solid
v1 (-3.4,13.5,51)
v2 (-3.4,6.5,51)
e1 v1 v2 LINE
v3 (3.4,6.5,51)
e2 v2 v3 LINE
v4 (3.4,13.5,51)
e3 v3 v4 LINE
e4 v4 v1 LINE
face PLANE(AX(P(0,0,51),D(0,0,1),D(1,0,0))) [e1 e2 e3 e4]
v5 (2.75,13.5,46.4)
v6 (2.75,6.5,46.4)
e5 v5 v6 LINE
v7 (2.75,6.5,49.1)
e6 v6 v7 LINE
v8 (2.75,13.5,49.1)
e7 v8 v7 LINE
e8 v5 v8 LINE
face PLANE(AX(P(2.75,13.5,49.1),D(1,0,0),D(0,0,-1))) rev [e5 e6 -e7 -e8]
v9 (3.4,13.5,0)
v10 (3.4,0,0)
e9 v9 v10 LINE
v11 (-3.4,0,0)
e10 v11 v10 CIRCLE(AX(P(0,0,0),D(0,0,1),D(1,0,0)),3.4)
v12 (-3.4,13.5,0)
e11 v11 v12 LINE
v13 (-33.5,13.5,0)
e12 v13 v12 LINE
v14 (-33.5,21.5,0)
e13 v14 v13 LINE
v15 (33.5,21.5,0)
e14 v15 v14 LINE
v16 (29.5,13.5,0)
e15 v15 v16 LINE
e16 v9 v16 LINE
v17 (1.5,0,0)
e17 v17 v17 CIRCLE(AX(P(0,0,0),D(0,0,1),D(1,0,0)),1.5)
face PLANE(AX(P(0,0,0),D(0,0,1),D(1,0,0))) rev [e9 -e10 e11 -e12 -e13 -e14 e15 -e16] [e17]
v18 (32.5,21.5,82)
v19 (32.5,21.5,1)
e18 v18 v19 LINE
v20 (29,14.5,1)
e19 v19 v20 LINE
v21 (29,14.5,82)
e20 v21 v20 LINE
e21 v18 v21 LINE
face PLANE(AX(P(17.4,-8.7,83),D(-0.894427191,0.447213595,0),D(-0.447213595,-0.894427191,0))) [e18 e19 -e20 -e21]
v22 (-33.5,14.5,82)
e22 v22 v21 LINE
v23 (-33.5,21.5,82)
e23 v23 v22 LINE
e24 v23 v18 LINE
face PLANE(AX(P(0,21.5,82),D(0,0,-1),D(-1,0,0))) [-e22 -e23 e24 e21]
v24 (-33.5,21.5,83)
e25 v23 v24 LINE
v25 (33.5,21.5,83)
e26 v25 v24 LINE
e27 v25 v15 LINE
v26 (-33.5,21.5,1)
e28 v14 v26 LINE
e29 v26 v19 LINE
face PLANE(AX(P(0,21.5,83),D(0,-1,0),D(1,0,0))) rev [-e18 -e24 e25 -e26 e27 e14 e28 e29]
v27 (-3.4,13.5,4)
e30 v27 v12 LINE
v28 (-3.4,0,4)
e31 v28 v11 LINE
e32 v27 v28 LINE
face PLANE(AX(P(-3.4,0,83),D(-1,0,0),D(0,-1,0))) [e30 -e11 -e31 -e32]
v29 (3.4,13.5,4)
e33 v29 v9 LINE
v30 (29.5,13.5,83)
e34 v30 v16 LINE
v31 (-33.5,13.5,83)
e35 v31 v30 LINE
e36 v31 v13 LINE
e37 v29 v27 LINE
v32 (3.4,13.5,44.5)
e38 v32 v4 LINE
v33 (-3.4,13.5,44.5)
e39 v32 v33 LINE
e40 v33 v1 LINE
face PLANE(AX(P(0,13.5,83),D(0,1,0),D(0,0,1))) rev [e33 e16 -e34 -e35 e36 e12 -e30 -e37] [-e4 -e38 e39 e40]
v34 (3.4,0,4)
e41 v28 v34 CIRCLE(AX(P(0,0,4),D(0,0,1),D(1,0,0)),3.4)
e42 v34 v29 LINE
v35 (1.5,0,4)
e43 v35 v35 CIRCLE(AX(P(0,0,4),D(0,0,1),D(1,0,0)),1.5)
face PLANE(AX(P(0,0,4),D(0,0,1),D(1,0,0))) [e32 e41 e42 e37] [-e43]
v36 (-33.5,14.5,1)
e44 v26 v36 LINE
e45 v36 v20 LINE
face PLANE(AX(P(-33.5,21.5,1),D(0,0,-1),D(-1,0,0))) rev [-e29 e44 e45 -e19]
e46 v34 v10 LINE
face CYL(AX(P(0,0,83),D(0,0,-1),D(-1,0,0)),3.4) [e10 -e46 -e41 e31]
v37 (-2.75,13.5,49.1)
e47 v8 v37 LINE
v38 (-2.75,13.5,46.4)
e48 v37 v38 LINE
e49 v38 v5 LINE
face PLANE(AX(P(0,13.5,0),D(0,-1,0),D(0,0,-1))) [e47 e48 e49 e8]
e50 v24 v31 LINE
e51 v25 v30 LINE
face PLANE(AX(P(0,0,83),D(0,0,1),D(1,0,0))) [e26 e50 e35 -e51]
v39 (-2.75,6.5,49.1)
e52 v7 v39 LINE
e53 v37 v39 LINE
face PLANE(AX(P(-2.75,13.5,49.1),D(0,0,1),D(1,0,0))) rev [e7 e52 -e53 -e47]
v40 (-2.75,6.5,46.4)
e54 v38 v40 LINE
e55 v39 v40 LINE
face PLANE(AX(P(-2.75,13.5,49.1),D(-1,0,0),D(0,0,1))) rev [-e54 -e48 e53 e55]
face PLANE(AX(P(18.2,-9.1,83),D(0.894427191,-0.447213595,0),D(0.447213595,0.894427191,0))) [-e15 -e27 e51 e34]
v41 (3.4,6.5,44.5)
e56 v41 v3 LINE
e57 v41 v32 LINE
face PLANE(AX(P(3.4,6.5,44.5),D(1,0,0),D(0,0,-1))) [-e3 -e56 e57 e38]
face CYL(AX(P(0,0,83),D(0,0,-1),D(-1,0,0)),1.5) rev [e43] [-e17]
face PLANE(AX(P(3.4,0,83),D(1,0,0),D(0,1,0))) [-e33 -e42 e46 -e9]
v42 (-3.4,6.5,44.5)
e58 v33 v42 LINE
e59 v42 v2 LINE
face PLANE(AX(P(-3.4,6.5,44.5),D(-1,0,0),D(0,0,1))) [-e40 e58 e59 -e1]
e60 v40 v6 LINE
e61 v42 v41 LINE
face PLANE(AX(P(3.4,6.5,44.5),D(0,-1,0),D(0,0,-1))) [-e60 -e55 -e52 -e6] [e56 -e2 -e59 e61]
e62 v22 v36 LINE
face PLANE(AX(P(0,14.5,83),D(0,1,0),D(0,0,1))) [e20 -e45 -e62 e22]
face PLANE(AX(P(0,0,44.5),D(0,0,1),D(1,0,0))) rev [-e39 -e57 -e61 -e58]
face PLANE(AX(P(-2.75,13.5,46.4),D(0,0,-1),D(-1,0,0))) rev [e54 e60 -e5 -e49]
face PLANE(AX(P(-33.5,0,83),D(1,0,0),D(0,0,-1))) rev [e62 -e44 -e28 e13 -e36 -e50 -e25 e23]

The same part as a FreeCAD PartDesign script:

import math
import FreeCAD as App
import Part
import Sketcher
Q = App.Units.Quantity


def add_polygon(sketch, points):
    """Adds a closed chain of lines whose ends are joined by coincident constraints."""
    first, n = sketch.GeometryCount, len(points)
    for a, b in zip(points, points[1:] + points[:1]):
        sketch.addGeometry(Part.LineSegment(App.Vector(*a, 0), App.Vector(*b, 0)), False)
    for i in range(n):
        sketch.addConstraint(Sketcher.Constraint("Coincident", first + i, 2, first + (i + 1) % n, 1))

doc = App.newDocument("Part")
body = doc.addObject("PartDesign::Body", "Body")

sketch1 = doc.addObject("Sketcher::SketchObject", "Sketch")
body.addObject(sketch1)
sketch1.AttachmentSupport = (doc.XY_Plane, [""])
sketch1.MapMode = "FlatFace"
sketch1.addGeometry([
    Part.LineSegment(App.Vector(32.5, 21.5, 0), App.Vector(29, 14.5, 0)),
    Part.LineSegment(App.Vector(29, 14.5, 0), App.Vector(-33.5, 14.5, 0)),
    Part.LineSegment(App.Vector(-33.5, 14.5, 0), App.Vector(-33.5, 13.5, 0)),
    Part.LineSegment(App.Vector(-33.5, 13.5, 0), App.Vector(-3.4, 13.5, 0)),
    Part.LineSegment(App.Vector(-3.4, 13.5, 0), App.Vector(-3.4, 0, 0)),
    Part.ArcOfCircle(Part.Circle(App.Vector(0, 0, 0), App.Vector(0, 0, 1), 3.4), math.radians(180), math.radians(360)),
    Part.LineSegment(App.Vector(3.4, 0, 0), App.Vector(3.4, 13.5, 0)),
    Part.LineSegment(App.Vector(3.4, 13.5, 0), App.Vector(29.5, 13.5, 0)),
    Part.LineSegment(App.Vector(29.5, 13.5, 0), App.Vector(33.5, 21.5, 0)),
    Part.LineSegment(App.Vector(33.5, 21.5, 0), App.Vector(32.5, 21.5, 0)),
    Part.Circle(App.Vector(0, 0, 0), App.Vector(0, 0, 1), 1.5),
], False)
sketch1.addConstraint([
    Sketcher.Constraint("Coincident", 0, 2, 1, 1),
    Sketcher.Constraint("Coincident", 1, 2, 2, 1),
    Sketcher.Constraint("Coincident", 2, 2, 3, 1),
    Sketcher.Constraint("Coincident", 3, 2, 4, 1),
    Sketcher.Constraint("Tangent", 4, 2, 5, 1),
    Sketcher.Constraint("Tangent", 5, 2, 6, 1),
    Sketcher.Constraint("Coincident", 6, 2, 7, 1),
    Sketcher.Constraint("Coincident", 7, 2, 8, 1),
    Sketcher.Constraint("Coincident", 8, 2, 9, 1),
    Sketcher.Constraint("Coincident", 9, 2, 0, 1),
    Sketcher.Constraint("Horizontal", 1),
    Sketcher.Constraint("Vertical", 2),
    Sketcher.Constraint("Horizontal", 3),
    Sketcher.Constraint("Vertical", 4),
    Sketcher.Constraint("Vertical", 6),
    Sketcher.Constraint("Horizontal", 7),
    Sketcher.Constraint("Horizontal", 9),
    Sketcher.Constraint("Coincident", 5, 3, -1, 1),
    Sketcher.Constraint("Coincident", 10, 3, -1, 1),
    Sketcher.Constraint("Parallel", 0, 8),
    Sketcher.Constraint("Horizontal", 3, 2, 6, 2),
    Sketcher.Constraint("Equal", 9, 2),
    Sketcher.Constraint("Diameter", 10, Q("3 mm")),
    Sketcher.Constraint("Radius", 5, Q("3.4 mm")),
    Sketcher.Constraint("DistanceX", 9, 2, 9, 1, Q("1 mm")),
    Sketcher.Constraint("DistanceX", 1, 2, 1, 1, Q("62.5 mm")),
    Sketcher.Constraint("DistanceX", 3, 1, 3, 2, Q("30.1 mm")),
    Sketcher.Constraint("DistanceX", 7, 1, 7, 2, Q("26.1 mm")),
    Sketcher.Constraint("DistanceY", 4, 2, 4, 1, Q("13.5 mm")),
    Sketcher.Constraint("DistanceY", 0, 2, 8, 2, Q("7 mm")),
])
pad1 = doc.addObject("PartDesign::Pad", "Pad")
body.addObject(pad1)
pad1.Profile = sketch1
pad1.Length = 83

sketch2 = doc.addObject("Sketcher::SketchObject", "Sketch001")
body.addObject(sketch2)
sketch2.AttachmentSupport = (doc.XZ_Plane, [""])
sketch2.MapMode = "FlatFace"
sketch2.AttachmentOffset = App.Placement(App.Vector(0, 0, -14.5), App.Rotation())
add_polygon(sketch2, [(-33.5, 82), (-33.5, 83), (33.5, 83), (33.5, 82)])
add_polygon(sketch2, [(-33.5, 0), (-33.5, 1), (33.5, 1), (33.5, 0)])
sketch2.addConstraint([
    Sketcher.Constraint("Vertical", 0),
    Sketcher.Constraint("Horizontal", 1),
    Sketcher.Constraint("Vertical", 2),
    Sketcher.Constraint("Horizontal", 3),
    Sketcher.Constraint("Vertical", 4),
    Sketcher.Constraint("Horizontal", 5),
    Sketcher.Constraint("Vertical", 6),
    Sketcher.Constraint("Horizontal", 7),
    Sketcher.Constraint("Symmetric", 6, 2, 7, 2, -1, 1),
    Sketcher.Constraint("Vertical", 3, 2, 4, 2),
    Sketcher.Constraint("Vertical", 2, 2, 5, 2),
    Sketcher.Constraint("Equal", 2, 4),
    Sketcher.Constraint("DistanceX", 1, 1, 1, 2, Q("67 mm")),
    Sketcher.Constraint("DistanceY", 0, 1, 0, 2, Q("1 mm")),
    Sketcher.Constraint("DistanceY", -1, 1, 0, 2, Q("83 mm")),
])
pad2 = doc.addObject("PartDesign::Pad", "Pad001")
body.addObject(pad2)
pad2.Profile = sketch2
pad2.Length = 7
pad2.Reversed = True

sketch3 = doc.addObject("Sketcher::SketchObject", "Sketch002")
body.addObject(sketch3)
sketch3.AttachmentSupport = (doc.XY_Plane, [""])
sketch3.MapMode = "FlatFace"
sketch3.AttachmentOffset = App.Placement(App.Vector(0, 0, 83), App.Rotation())
add_polygon(sketch3, [(33.5, 21.5), (29.5, 13.5), (33.5, 14.5)])
sketch3.addConstraint([
    Sketcher.Constraint("Vertical", 2),
    Sketcher.Constraint("DistanceY", 2, 1, 2, 2, Q("7 mm")),
    Sketcher.Constraint("DistanceX", 0, 2, 1, 2, Q("4 mm")),
    Sketcher.Constraint("DistanceY", 0, 2, 1, 2, Q("1 mm")),
    Sketcher.Constraint("DistanceX", -1, 1, 0, 2, Q("29.5 mm")),
    Sketcher.Constraint("DistanceY", -1, 1, 0, 2, Q("13.5 mm")),
])
pocket1 = doc.addObject("PartDesign::Pocket", "Pocket")
body.addObject(pocket1)
pocket1.Profile = sketch3
pocket1.Length = 83

sketch4 = doc.addObject("Sketcher::SketchObject", "Sketch003")
body.addObject(sketch4)
sketch4.AttachmentSupport = (doc.XY_Plane, [""])
sketch4.MapMode = "FlatFace"
sketch4.AttachmentOffset = App.Placement(App.Vector(0, 0, 83), App.Rotation())
add_polygon(sketch4, [(-3, 14), (-3, -3), (3, -3), (3, 14)])
sketch4.addConstraint([
    Sketcher.Constraint("Vertical", 0),
    Sketcher.Constraint("Horizontal", 1),
    Sketcher.Constraint("Vertical", 2),
    Sketcher.Constraint("Horizontal", 3),
    Sketcher.Constraint("DistanceX", 1, 1, 1, 2, Q("6.8 mm")),
    Sketcher.Constraint("DistanceY", 0, 2, 0, 1, Q("16.9 mm")),
    Sketcher.Constraint("DistanceX", 0, 2, -1, 1, Q("3.4 mm")),
    Sketcher.Constraint("DistanceY", 0, 2, -1, 1, Q("3.4 mm")),
])
pocket2 = doc.addObject("PartDesign::Pocket", "Pocket001")
body.addObject(pocket2)
pocket2.Profile = sketch4
pocket2.Length = 79

sketch5 = doc.addObject("Sketcher::SketchObject", "Sketch004")
body.addObject(sketch5)
sketch5.AttachmentSupport = (doc.XY_Plane, [""])
sketch5.MapMode = "FlatFace"
sketch5.AttachmentOffset = App.Placement(App.Vector(0, 0, 83), App.Rotation())
add_polygon(sketch5, [(-3, 14), (-3, 6), (3, 6), (3, 14)])
sketch5.addConstraint([
    Sketcher.Constraint("Vertical", 0),
    Sketcher.Constraint("Horizontal", 1),
    Sketcher.Constraint("Vertical", 2),
    Sketcher.Constraint("Horizontal", 3),
    Sketcher.Constraint("DistanceY", 0, 2, 0, 1, Q("7 mm")),
    Sketcher.Constraint("DistanceX", 1, 1, 1, 2, Q("6.8 mm")),
    Sketcher.Constraint("DistanceX", 0, 2, -1, 1, Q("3.4 mm")),
    Sketcher.Constraint("DistanceY", -1, 1, 0, 2, Q("6.5 mm")),
])
pad3 = doc.addObject("PartDesign::Pad", "Pad002")
body.addObject(pad3)
pad3.Profile = sketch5
pad3.Length = 38.5
pad3.Reversed = True

sketch6 = doc.addObject("Sketcher::SketchObject", "Sketch005")
body.addObject(sketch6)
sketch6.AttachmentSupport = (doc.XY_Plane, [""])
sketch6.MapMode = "FlatFace"
sketch6.AttachmentOffset = App.Placement(App.Vector(0, 0, 83), App.Rotation())
add_polygon(sketch6, [(-3, 14), (-3, 6), (3, 6), (3, 14)])
sketch6.addConstraint([
    Sketcher.Constraint("Vertical", 0),
    Sketcher.Constraint("Horizontal", 1),
    Sketcher.Constraint("Vertical", 2),
    Sketcher.Constraint("Horizontal", 3),
    Sketcher.Constraint("DistanceY", 0, 2, 0, 1, Q("7 mm")),
    Sketcher.Constraint("DistanceX", 1, 1, 1, 2, Q("6.8 mm")),
    Sketcher.Constraint("DistanceX", 0, 2, -1, 1, Q("3.4 mm")),
    Sketcher.Constraint("DistanceY", -1, 1, 0, 2, Q("6.5 mm")),
])
pocket3 = doc.addObject("PartDesign::Pocket", "Pocket002")
body.addObject(pocket3)
pocket3.Profile = sketch6
pocket3.Length = 32

sketch7 = doc.addObject("Sketcher::SketchObject", "Sketch006")
body.addObject(sketch7)
sketch7.AttachmentSupport = (doc.XZ_Plane, [""])
sketch7.MapMode = "FlatFace"
sketch7.AttachmentOffset = App.Placement(App.Vector(0, 0, -6.5), App.Rotation())
add_polygon(sketch7, [(-2.8, 49.1), (-2.8, 46.4), (2.8, 46.4), (2.8, 49.1)])
sketch7.addConstraint([
    Sketcher.Constraint("Vertical", 0),
    Sketcher.Constraint("Horizontal", 1),
    Sketcher.Constraint("Vertical", 2),
    Sketcher.Constraint("Horizontal", 3),
    Sketcher.Constraint("DistanceX", 1, 1, 1, 2, Q("5.5 mm")),
    Sketcher.Constraint("DistanceY", 0, 2, 0, 1, Q("2.7 mm")),
    Sketcher.Constraint("DistanceY", -1, 1, 0, 2, Q("46.4 mm")),
    Sketcher.Constraint("DistanceX", 0, 2, -1, 1, Q("2.75 mm")),
])
pocket4 = doc.addObject("PartDesign::Pocket", "Pocket003")
body.addObject(pocket4)
pocket4.Profile = sketch7
pocket4.Length = 7

doc.recompute()
